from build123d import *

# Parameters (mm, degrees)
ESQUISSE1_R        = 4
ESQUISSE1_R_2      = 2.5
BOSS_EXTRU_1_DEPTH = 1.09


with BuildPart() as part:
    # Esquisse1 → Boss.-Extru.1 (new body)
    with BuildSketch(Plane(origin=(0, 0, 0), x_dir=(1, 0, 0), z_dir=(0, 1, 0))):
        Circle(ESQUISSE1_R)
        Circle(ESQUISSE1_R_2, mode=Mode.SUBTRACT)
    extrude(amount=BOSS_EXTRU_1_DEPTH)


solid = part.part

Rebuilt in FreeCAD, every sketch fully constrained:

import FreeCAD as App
import Part
import Sketcher
Q = App.Units.Quantity

doc = App.newDocument("Part")
params = doc.addObject("Spreadsheet::Sheet", "Params")
for row, (alias, value) in enumerate([
    ("sketch1_diameter", "8 mm"),
    ("sketch1_diameter2", "5 mm"),
    ("pad1_length", "1.09 mm"),
], start=1):
    params.set(f"A{row}", alias)
    params.set(f"B{row}", "=" + value)
    params.setAlias(f"B{row}", alias)

body = doc.addObject("PartDesign::Body", "Body")

sketch1 = doc.addObject("Sketcher::SketchObject", "Sketch")
body.addObject(sketch1)
sketch1.AttachmentSupport = (doc.XZ_Plane, [""])
sketch1.MapMode = "FlatFace"
sketch1.addGeometry([
    Part.Circle(App.Vector(0, 0, 0), App.Vector(0, 0, 1), 4),
    Part.Circle(App.Vector(0, 0, 0), App.Vector(0, 0, 1), 2.5),
], False)
sketch1.addConstraint([
    Sketcher.Constraint("Coincident", 0, 3, -1, 1),
    Sketcher.Constraint("Coincident", 1, 3, -1, 1),
    Sketcher.Constraint("Diameter", 0, Q("8 mm")),
    Sketcher.Constraint("Diameter", 1, Q("5 mm")),
])
sketch1.setExpression("Constraints[2]", "Params.sketch1_diameter")
sketch1.setExpression("Constraints[3]", "Params.sketch1_diameter2")
pad1 = doc.addObject("PartDesign::Pad", "Pad")
body.addObject(pad1)
pad1.Profile = sketch1
pad1.setExpression("Length", "Params.pad1_length")
pad1.Reversed = True

doc.recompute()
